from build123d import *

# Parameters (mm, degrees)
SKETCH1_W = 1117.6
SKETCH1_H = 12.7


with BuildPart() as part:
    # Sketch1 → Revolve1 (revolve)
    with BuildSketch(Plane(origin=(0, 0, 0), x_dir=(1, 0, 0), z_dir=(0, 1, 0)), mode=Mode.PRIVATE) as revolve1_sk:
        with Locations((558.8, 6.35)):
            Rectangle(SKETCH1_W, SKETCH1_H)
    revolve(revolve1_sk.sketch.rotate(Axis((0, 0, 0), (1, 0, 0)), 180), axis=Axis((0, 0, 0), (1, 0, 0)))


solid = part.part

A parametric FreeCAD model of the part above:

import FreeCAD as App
import Part
import Sketcher

V = App.Vector
Q = App.Units.Quantity

doc = App.newDocument("Part")
body = doc.addObject("PartDesign::Body", "Body")

# Sketch on XZ plane
sketch1 = body.newObject("Sketcher::SketchObject", "Sketch")
sketch1.AttachmentSupport = (doc.getObject("XZ_Plane"), [""])
sketch1.MapMode = "FlatFace"
sketch1.addGeometry(Part.LineSegment(V(0, -12.7, 0), V(0, 0, 0)), False)
sketch1.addGeometry(Part.LineSegment(V(0, 0, 0), V(1117.6, 0, 0)), False)
sketch1.addGeometry(Part.LineSegment(V(1117.6, 0, 0), V(1117.6, -12.7, 0)), False)
sketch1.addGeometry(Part.LineSegment(V(1117.6, -12.7, 0), V(0, -12.7, 0)), False)
sketch1.addConstraint(Sketcher.Constraint("Coincident", 0, 2, 1, 1))
sketch1.addConstraint(Sketcher.Constraint("Coincident", 1, 2, 2, 1))
sketch1.addConstraint(Sketcher.Constraint("Coincident", 2, 2, 3, 1))
sketch1.addConstraint(Sketcher.Constraint("Coincident", 3, 2, 0, 1))
sketch1.addConstraint(Sketcher.Constraint("Vertical", 0))
sketch1.addConstraint(Sketcher.Constraint("Horizontal", 1))
sketch1.addConstraint(Sketcher.Constraint("Vertical", 2))
sketch1.addConstraint(Sketcher.Constraint("Horizontal", 3))
sketch1.addConstraint(Sketcher.Constraint("Coincident", 0, 2, -1, 1))
sketch1.addConstraint(Sketcher.Constraint("DistanceX", 1, 1, 1, 2, Q("44 in")))
sketch1.addConstraint(Sketcher.Constraint("DistanceY", 0, 1, 0, 2, Q("0.5 in")))
revolution = body.newObject("PartDesign::Revolution", "Revolution")
revolution.Profile = sketch1
revolution.ReferenceAxis = (sketch1, ["H_Axis"])
revolution.Angle = 360

doc.recompute()
